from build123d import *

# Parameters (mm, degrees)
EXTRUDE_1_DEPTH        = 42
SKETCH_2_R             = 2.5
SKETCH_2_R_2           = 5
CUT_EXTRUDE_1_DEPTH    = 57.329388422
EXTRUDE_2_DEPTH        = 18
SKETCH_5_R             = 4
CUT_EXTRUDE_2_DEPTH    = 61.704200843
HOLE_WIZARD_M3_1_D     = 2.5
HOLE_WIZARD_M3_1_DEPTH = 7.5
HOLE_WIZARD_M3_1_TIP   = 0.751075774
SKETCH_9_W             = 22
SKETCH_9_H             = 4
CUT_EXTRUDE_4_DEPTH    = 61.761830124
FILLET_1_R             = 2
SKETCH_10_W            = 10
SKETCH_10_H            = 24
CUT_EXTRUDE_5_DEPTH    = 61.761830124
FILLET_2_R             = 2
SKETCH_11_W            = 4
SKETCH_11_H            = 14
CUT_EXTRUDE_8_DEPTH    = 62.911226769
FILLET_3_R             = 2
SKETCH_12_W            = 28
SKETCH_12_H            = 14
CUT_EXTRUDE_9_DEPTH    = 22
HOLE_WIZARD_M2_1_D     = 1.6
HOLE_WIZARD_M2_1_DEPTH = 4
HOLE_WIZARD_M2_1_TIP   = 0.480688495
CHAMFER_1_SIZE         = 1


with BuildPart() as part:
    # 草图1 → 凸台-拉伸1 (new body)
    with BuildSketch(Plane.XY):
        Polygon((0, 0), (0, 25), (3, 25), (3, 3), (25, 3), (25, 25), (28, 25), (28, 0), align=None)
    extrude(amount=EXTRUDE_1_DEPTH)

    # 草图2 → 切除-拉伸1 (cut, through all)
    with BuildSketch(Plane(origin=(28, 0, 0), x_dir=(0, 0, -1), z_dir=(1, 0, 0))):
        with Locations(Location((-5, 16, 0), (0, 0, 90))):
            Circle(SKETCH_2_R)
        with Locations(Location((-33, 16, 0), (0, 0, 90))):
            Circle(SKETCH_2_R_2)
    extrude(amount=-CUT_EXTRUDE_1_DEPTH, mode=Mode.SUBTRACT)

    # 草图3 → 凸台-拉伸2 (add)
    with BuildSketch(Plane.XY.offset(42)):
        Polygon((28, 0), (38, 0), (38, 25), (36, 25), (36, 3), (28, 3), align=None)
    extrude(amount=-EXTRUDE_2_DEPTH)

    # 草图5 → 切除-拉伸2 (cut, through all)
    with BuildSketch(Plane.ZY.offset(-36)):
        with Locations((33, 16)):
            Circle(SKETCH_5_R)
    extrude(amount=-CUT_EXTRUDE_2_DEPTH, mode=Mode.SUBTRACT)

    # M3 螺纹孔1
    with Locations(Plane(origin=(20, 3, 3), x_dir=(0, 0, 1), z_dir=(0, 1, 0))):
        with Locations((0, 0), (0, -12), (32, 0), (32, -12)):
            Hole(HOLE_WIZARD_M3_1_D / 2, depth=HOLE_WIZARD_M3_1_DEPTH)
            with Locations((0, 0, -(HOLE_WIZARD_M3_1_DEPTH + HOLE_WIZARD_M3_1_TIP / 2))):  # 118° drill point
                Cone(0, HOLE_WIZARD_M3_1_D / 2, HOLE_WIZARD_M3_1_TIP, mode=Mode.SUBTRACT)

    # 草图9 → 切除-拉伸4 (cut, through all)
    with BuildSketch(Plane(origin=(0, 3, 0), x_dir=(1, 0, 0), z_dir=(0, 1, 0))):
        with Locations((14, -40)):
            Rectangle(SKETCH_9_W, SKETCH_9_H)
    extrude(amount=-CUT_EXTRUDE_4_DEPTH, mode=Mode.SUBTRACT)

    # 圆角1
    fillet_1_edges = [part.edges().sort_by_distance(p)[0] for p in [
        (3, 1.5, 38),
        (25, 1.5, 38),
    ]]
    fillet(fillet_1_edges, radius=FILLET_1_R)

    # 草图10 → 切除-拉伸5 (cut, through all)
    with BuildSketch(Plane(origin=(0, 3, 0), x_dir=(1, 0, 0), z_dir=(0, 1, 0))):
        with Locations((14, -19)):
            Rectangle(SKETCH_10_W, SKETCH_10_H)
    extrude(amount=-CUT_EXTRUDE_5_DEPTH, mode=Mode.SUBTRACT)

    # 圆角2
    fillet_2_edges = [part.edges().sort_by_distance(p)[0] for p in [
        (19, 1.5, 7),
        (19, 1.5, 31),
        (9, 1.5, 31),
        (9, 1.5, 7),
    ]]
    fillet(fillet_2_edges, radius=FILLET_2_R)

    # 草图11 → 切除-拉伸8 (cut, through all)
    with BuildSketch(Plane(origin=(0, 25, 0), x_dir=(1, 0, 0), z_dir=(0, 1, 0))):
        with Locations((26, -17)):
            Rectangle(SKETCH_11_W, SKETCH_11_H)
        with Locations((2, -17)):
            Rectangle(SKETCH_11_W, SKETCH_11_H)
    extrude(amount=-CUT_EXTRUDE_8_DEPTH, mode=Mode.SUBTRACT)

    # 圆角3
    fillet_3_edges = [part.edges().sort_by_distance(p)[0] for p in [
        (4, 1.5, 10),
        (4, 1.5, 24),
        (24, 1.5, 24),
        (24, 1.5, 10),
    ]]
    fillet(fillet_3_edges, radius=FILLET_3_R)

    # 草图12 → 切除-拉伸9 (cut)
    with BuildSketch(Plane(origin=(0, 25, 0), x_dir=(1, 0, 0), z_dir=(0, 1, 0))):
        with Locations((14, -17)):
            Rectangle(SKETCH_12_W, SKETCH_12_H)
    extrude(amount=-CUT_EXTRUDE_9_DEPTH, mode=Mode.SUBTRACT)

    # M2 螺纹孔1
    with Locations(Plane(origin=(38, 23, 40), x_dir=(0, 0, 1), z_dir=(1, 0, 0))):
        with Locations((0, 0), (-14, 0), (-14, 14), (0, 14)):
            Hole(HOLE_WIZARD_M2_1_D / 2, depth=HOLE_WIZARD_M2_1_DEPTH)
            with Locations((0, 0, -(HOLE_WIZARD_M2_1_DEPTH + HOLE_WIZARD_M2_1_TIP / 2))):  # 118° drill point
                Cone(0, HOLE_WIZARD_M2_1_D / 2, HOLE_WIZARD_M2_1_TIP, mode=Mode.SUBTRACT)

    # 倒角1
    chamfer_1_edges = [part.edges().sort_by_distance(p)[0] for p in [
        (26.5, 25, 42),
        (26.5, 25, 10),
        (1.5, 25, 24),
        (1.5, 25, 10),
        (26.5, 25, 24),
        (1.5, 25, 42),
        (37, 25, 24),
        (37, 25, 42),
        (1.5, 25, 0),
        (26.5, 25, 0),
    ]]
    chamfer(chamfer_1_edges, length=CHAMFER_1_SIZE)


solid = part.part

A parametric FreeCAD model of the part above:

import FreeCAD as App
import Part
import Sketcher
Q = App.Units.Quantity


def edges_at(feature, points):
    """Names of the edges that pass closest to the given points."""
    edges = feature.Shape.Edges
    near = lambda p: min(range(len(edges)), key=lambda i: edges[i].distToShape(Part.Vertex(*p))[0])
    return sorted({f"Edge{near(p) + 1}" for p in points})

doc = App.newDocument("Part")
params = doc.addObject("Spreadsheet::Sheet", "Params")
for row, (alias, value) in enumerate([
    ("sketch1_width", "28 mm"),
    ("sketch1_width2", "3 mm"),
    ("sketch1_height", "25 mm"),
    ("pad1_length", "42 mm"),
    ("sketch2_diameter", "5 mm"),
    ("sketch2_diameter2", "10 mm"),
    ("sketch3_width", "10 mm"),
    ("sketch3_width2", "2 mm"),
    ("sketch3_height", "25 mm"),
    ("sketch3_height2", "22 mm"),
    ("pad2_length", "18 mm"),
    ("sketch4_diameter", "8 mm"),
    ("sketch5_diameter", "2.5 mm"),
    ("hole_diameter", "2.5 mm"),
    ("hole_depth", "7.5 mm"),
    ("sketch6_width", "22 mm"),
    ("sketch6_height", "4 mm"),
    ("fillet_radius", "2 mm"),
    ("sketch7_width", "10 mm"),
    ("sketch7_height", "24 mm"),
    ("fillet2_radius", "2 mm"),
    ("sketch8_width", "4 mm"),
    ("sketch8_height", "14 mm"),
    ("fillet3_radius", "2 mm"),
    ("sketch9_width", "28 mm"),
    ("sketch9_height", "14 mm"),
    ("pocket6_length", "22 mm"),
    ("sketch10_diameter", "1.6 mm"),
    ("hole2_diameter", "1.6 mm"),
    ("hole2_depth", "4 mm"),
    ("chamfer_size", "1 mm"),
], start=1):
    params.set(f"A{row}", alias)
    params.set(f"B{row}", "=" + value)
    params.setAlias(f"B{row}", alias)

body = doc.addObject("PartDesign::Body", "Body")

# Sketch on XY plane
sketch1 = body.newObject("Sketcher::SketchObject", "Sketch")
sketch1.AttachmentSupport = (doc.getObject("XY_Plane"), [""])
sketch1.MapMode = "FlatFace"
sketch1.addGeometry(Part.LineSegment(App.Vector(0, 25, 0), App.Vector(0, 0, 0)), False)
sketch1.addGeometry(Part.LineSegment(App.Vector(0, 0, 0), App.Vector(28, 0, 0)), False)
sketch1.addGeometry(Part.LineSegment(App.Vector(28, 0, 0), App.Vector(28, 25, 0)), False)
sketch1.addGeometry(Part.LineSegment(App.Vector(28, 25, 0), App.Vector(25, 25, 0)), False)
sketch1.addGeometry(Part.LineSegment(App.Vector(25, 25, 0), App.Vector(25, 3, 0)), False)
sketch1.addGeometry(Part.LineSegment(App.Vector(25, 3, 0), App.Vector(3, 3, 0)), False)
sketch1.addGeometry(Part.LineSegment(App.Vector(3, 3, 0), App.Vector(3, 25, 0)), False)
sketch1.addGeometry(Part.LineSegment(App.Vector(3, 25, 0), App.Vector(0, 25, 0)), False)
sketch1.addConstraint(Sketcher.Constraint("Coincident", 0, 2, 1, 1))
sketch1.addConstraint(Sketcher.Constraint("Coincident", 1, 2, 2, 1))
sketch1.addConstraint(Sketcher.Constraint("Coincident", 2, 2, 3, 1))
sketch1.addConstraint(Sketcher.Constraint("Coincident", 3, 2, 4, 1))
sketch1.addConstraint(Sketcher.Constraint("Coincident", 4, 2, 5, 1))
sketch1.addConstraint(Sketcher.Constraint("Coincident", 5, 2, 6, 1))
sketch1.addConstraint(Sketcher.Constraint("Coincident", 6, 2, 7, 1))
sketch1.addConstraint(Sketcher.Constraint("Coincident", 7, 2, 0, 1))
sketch1.addConstraint(Sketcher.Constraint("Vertical", 0))
sketch1.addConstraint(Sketcher.Constraint("Horizontal", 1))
sketch1.addConstraint(Sketcher.Constraint("Vertical", 2))
sketch1.addConstraint(Sketcher.Constraint("Horizontal", 3))
sketch1.addConstraint(Sketcher.Constraint("Vertical", 4))
sketch1.addConstraint(Sketcher.Constraint("Horizontal", 5))
sketch1.addConstraint(Sketcher.Constraint("Vertical", 6))
sketch1.addConstraint(Sketcher.Constraint("Horizontal", 7))
sketch1.addConstraint(Sketcher.Constraint("Coincident", 0, 2, -1, 1))
sketch1.addConstraint(Sketcher.Constraint("Horizontal", 3, 2, 6, 2))
sketch1.addConstraint(Sketcher.Constraint("Equal", 3, 7))
sketch1.addConstraint(Sketcher.Constraint("Equal", 5, 4))
sketch1.addConstraint(Sketcher.Constraint("DistanceX", 1, 1, 1, 2, Q("28 mm")))
sketch1.addConstraint(Sketcher.Constraint("DistanceX", 3, 2, 3, 1, Q("3 mm")))
sketch1.addConstraint(Sketcher.Constraint("DistanceY", 0, 2, 0, 1, Q("25 mm")))
sketch1.setExpression("Constraints[20]", "Params.sketch1_width")
sketch1.setExpression("Constraints[21]", "Params.sketch1_width2")
sketch1.setExpression("Constraints[22]", "Params.sketch1_height")
pad1 = body.newObject("PartDesign::Pad", "Pad")
pad1.Profile = sketch1
pad1.setExpression("Length", "Params.pad1_length")

# Sketch on YZ plane
sketch2 = body.newObject("Sketcher::SketchObject", "Sketch001")
sketch2.AttachmentSupport = (doc.getObject("YZ_Plane"), [""])
sketch2.MapMode = "FlatFace"
sketch2.AttachmentOffset = App.Placement(App.Vector(0, 0, 28), App.Rotation())
sketch2.addGeometry(Part.Circle(App.Vector(16, 5, 0), App.Vector(0, 0, 1), 2.5), False)
sketch2.addGeometry(Part.Circle(App.Vector(16, 33, 0), App.Vector(0, 0, 1), 5), False)
sketch2.addConstraint(Sketcher.Constraint("Vertical", 0, 3, 1, 3))
sketch2.addConstraint(Sketcher.Constraint("Diameter", 0, Q("5 mm")))
sketch2.addConstraint(Sketcher.Constraint("Diameter", 1, Q("10 mm")))
sketch2.addConstraint(Sketcher.Constraint("DistanceX", -1, 1, 0, 3, Q("16 mm")))
sketch2.addConstraint(Sketcher.Constraint("DistanceY", -1, 1, 0, 3, Q("5 mm")))
sketch2.addConstraint(Sketcher.Constraint("DistanceY", -1, 1, 1, 3, Q("33 mm")))
sketch2.setExpression("Constraints[1]", "Params.sketch2_diameter")
sketch2.setExpression("Constraints[2]", "Params.sketch2_diameter2")
pocket1 = body.newObject("PartDesign::Pocket", "Pocket")
pocket1.Profile = sketch2
pocket1.Type = "ThroughAll"

# Sketch on XY plane
sketch3 = body.newObject("Sketcher::SketchObject", "Sketch002")
sketch3.AttachmentSupport = (doc.getObject("XY_Plane"), [""])
sketch3.MapMode = "FlatFace"
sketch3.AttachmentOffset = App.Placement(App.Vector(0, 0, 42), App.Rotation())
sketch3.addGeometry(Part.LineSegment(App.Vector(28, 0, 0), App.Vector(38, 0, 0)), False)
sketch3.addGeometry(Part.LineSegment(App.Vector(38, 0, 0), App.Vector(38, 25, 0)), False)
sketch3.addGeometry(Part.LineSegment(App.Vector(38, 25, 0), App.Vector(36, 25, 0)), False)
sketch3.addGeometry(Part.LineSegment(App.Vector(36, 25, 0), App.Vector(36, 3, 0)), False)
sketch3.addGeometry(Part.LineSegment(App.Vector(36, 3, 0), App.Vector(28, 3, 0)), False)
sketch3.addGeometry(Part.LineSegment(App.Vector(28, 3, 0), App.Vector(28, 0, 0)), False)
sketch3.addConstraint(Sketcher.Constraint("Coincident", 0, 2, 1, 1))
sketch3.addConstraint(Sketcher.Constraint("Coincident", 1, 2, 2, 1))
sketch3.addConstraint(Sketcher.Constraint("Coincident", 2, 2, 3, 1))
sketch3.addConstraint(Sketcher.Constraint("Coincident", 3, 2, 4, 1))
sketch3.addConstraint(Sketcher.Constraint("Coincident", 4, 2, 5, 1))
sketch3.addConstraint(Sketcher.Constraint("Coincident", 5, 2, 0, 1))
sketch3.addConstraint(Sketcher.Constraint("Horizontal", 0))
sketch3.addConstraint(Sketcher.Constraint("Vertical", 1))
sketch3.addConstraint(Sketcher.Constraint("Horizontal", 2))
sketch3.addConstraint(Sketcher.Constraint("Vertical", 3))
sketch3.addConstraint(Sketcher.Constraint("Horizontal", 4))
sketch3.addConstraint(Sketcher.Constraint("Vertical", 5))
sketch3.addConstraint(Sketcher.Constraint("PointOnObject", 0, 2, -1))
sketch3.addConstraint(Sketcher.Constraint("DistanceX", 0, 1, 0, 2, Q("10 mm")))
sketch3.addConstraint(Sketcher.Constraint("DistanceX", 2, 2, 2, 1, Q("2 mm")))
sketch3.addConstraint(Sketcher.Constraint("DistanceY", 1, 1, 1, 2, Q("25 mm")))
sketch3.addConstraint(Sketcher.Constraint("DistanceY", 3, 2, 3, 1, Q("22 mm")))
sketch3.addConstraint(Sketcher.Constraint("DistanceX", -1, 1, 0, 2, Q("38 mm")))
sketch3.setExpression("Constraints[13]", "Params.sketch3_width")
sketch3.setExpression("Constraints[14]", "Params.sketch3_width2")
sketch3.setExpression("Constraints[15]", "Params.sketch3_height")
sketch3.setExpression("Constraints[16]", "Params.sketch3_height2")
pad2 = body.newObject("PartDesign::Pad", "Pad001")
pad2.Profile = sketch3
pad2.setExpression("Length", "Params.pad2_length")
pad2.Reversed = True

# Sketch on YZ plane
sketch4 = body.newObject("Sketcher::SketchObject", "Sketch003")
sketch4.AttachmentSupport = (doc.getObject("YZ_Plane"), [""])
sketch4.MapMode = "FlatFace"
sketch4.AttachmentOffset = App.Placement(App.Vector(0, 0, 36), App.Rotation())
sketch4.addGeometry(Part.Circle(App.Vector(16, 33, 0), App.Vector(0, 0, 1), 4), False)
sketch4.addConstraint(Sketcher.Constraint("Diameter", 0, Q("8 mm")))
sketch4.addConstraint(Sketcher.Constraint("DistanceX", -1, 1, 0, 3, Q("16 mm")))
sketch4.addConstraint(Sketcher.Constraint("DistanceY", -1, 1, 0, 3, Q("33 mm")))
sketch4.setExpression("Constraints[0]", "Params.sketch4_diameter")
pocket2 = body.newObject("PartDesign::Pocket", "Pocket001")
pocket2.Profile = sketch4
pocket2.Type = "ThroughAll"
pocket2.Reversed = True

# Sketch on XZ plane
sketch5 = body.newObject("Sketcher::SketchObject", "Sketch004")
sketch5.AttachmentSupport = (doc.getObject("XZ_Plane"), [""])
sketch5.MapMode = "FlatFace"
sketch5.AttachmentOffset = App.Placement(App.Vector(0, 0, -3), App.Rotation())
sketch5.addGeometry(Part.Circle(App.Vector(20, 3, 0), App.Vector(0, 0, 1), 1.2), False)
sketch5.addGeometry(Part.Circle(App.Vector(8, 3, 0), App.Vector(0, 0, 1), 1.2), False)
sketch5.addGeometry(Part.Circle(App.Vector(20, 35, 0), App.Vector(0, 0, 1), 1.2), False)
sketch5.addGeometry(Part.Circle(App.Vector(8, 35, 0), App.Vector(0, 0, 1), 1.2), False)
sketch5.addConstraint(Sketcher.Constraint("Equal", 0, 1))
sketch5.addConstraint(Sketcher.Constraint("Equal", 1, 2))
sketch5.addConstraint(Sketcher.Constraint("Equal", 2, 3))
sketch5.addConstraint(Sketcher.Constraint("Horizontal", 0, 3, 1, 3))
sketch5.addConstraint(Sketcher.Constraint("Horizontal", 2, 3, 3, 3))
sketch5.addConstraint(Sketcher.Constraint("Vertical", 0, 3, 2, 3))
sketch5.addConstraint(Sketcher.Constraint("Vertical", 1, 3, 3, 3))
sketch5.addConstraint(Sketcher.Constraint("Diameter", 0, Q("2.5 mm")))
sketch5.addConstraint(Sketcher.Constraint("DistanceX", -1, 1, 0, 3, Q("20 mm")))
sketch5.addConstraint(Sketcher.Constraint("DistanceY", -1, 1, 0, 3, Q("3 mm")))
sketch5.addConstraint(Sketcher.Constraint("DistanceX", -1, 1, 1, 3, Q("8 mm")))
sketch5.addConstraint(Sketcher.Constraint("DistanceY", -1, 1, 2, 3, Q("35 mm")))
sketch5.setExpression("Constraints[7]", "Params.sketch5_diameter")
doc.recompute()
hole = body.newObject("PartDesign::Hole", "Hole")
hole.Profile = sketch5
hole.ThreadType = "None"
hole.setExpression("Diameter", "Params.hole_diameter")
hole.DepthType = "Dimension"
hole.setExpression("Depth", "Params.hole_depth")
hole.DrillPoint = "Angled"
hole.DrillPointAngle = 118
hole.Reversed = True

# Sketch on XZ plane
sketch6 = body.newObject("Sketcher::SketchObject", "Sketch005")
sketch6.AttachmentSupport = (doc.getObject("XZ_Plane"), [""])
sketch6.MapMode = "FlatFace"
sketch6.AttachmentOffset = App.Placement(App.Vector(0, 0, -3), App.Rotation())
sketch6.addGeometry(Part.LineSegment(App.Vector(3, 38, 0), App.Vector(3, 42, 0)), False)
sketch6.addGeometry(Part.LineSegment(App.Vector(3, 42, 0), App.Vector(25, 42, 0)), False)
sketch6.addGeometry(Part.LineSegment(App.Vector(25, 42, 0), App.Vector(25, 38, 0)), False)
sketch6.addGeometry(Part.LineSegment(App.Vector(25, 38, 0), App.Vector(3, 38, 0)), False)
sketch6.addConstraint(Sketcher.Constraint("Coincident", 0, 2, 1, 1))
sketch6.addConstraint(Sketcher.Constraint("Coincident", 1, 2, 2, 1))
sketch6.addConstraint(Sketcher.Constraint("Coincident", 2, 2, 3, 1))
sketch6.addConstraint(Sketcher.Constraint("Coincident", 3, 2, 0, 1))
sketch6.addConstraint(Sketcher.Constraint("Vertical", 0))
sketch6.addConstraint(Sketcher.Constraint("Horizontal", 1))
sketch6.addConstraint(Sketcher.Constraint("Vertical", 2))
sketch6.addConstraint(Sketcher.Constraint("Horizontal", 3))
sketch6.addConstraint(Sketcher.Constraint("DistanceX", 1, 1, 1, 2, Q("22 mm")))
sketch6.addConstraint(Sketcher.Constraint("DistanceY", 0, 1, 0, 2, Q("4 mm")))
sketch6.addConstraint(Sketcher.Constraint("DistanceX", -1, 1, 0, 2, Q("3 mm")))
sketch6.addConstraint(Sketcher.Constraint("DistanceY", -1, 1, 0, 2, Q("42 mm")))
sketch6.setExpression("Constraints[8]", "Params.sketch6_width")
sketch6.setExpression("Constraints[9]", "Params.sketch6_height")
pocket3 = body.newObject("PartDesign::Pocket", "Pocket002")
pocket3.Profile = sketch6
pocket3.Type = "ThroughAll"
pocket3.Reversed = True
doc.recompute()

fillet = body.newObject("PartDesign::Fillet", "Fillet")
fillet.Base = (pocket3, edges_at(pocket3, [(3, 1.5, 38), (25, 1.5, 38)]))
fillet.setExpression("Radius", "Params.fillet_radius")

# Sketch on XZ plane
sketch7 = body.newObject("Sketcher::SketchObject", "Sketch006")
sketch7.AttachmentSupport = (doc.getObject("XZ_Plane"), [""])
sketch7.MapMode = "FlatFace"
sketch7.AttachmentOffset = App.Placement(App.Vector(0, 0, -3), App.Rotation())
sketch7.addGeometry(Part.LineSegment(App.Vector(9, 7, 0), App.Vector(9, 31, 0)), False)
sketch7.addGeometry(Part.LineSegment(App.Vector(9, 31, 0), App.Vector(19, 31, 0)), False)
sketch7.addGeometry(Part.LineSegment(App.Vector(19, 31, 0), App.Vector(19, 7, 0)), False)
sketch7.addGeometry(Part.LineSegment(App.Vector(19, 7, 0), App.Vector(9, 7, 0)), False)
sketch7.addConstraint(Sketcher.Constraint("Coincident", 0, 2, 1, 1))
sketch7.addConstraint(Sketcher.Constraint("Coincident", 1, 2, 2, 1))
sketch7.addConstraint(Sketcher.Constraint("Coincident", 2, 2, 3, 1))
sketch7.addConstraint(Sketcher.Constraint("Coincident", 3, 2, 0, 1))
sketch7.addConstraint(Sketcher.Constraint("Vertical", 0))
sketch7.addConstraint(Sketcher.Constraint("Horizontal", 1))
sketch7.addConstraint(Sketcher.Constraint("Vertical", 2))
sketch7.addConstraint(Sketcher.Constraint("Horizontal", 3))
sketch7.addConstraint(Sketcher.Constraint("DistanceX", 1, 1, 1, 2, Q("10 mm")))
sketch7.addConstraint(Sketcher.Constraint("DistanceY", 0, 1, 0, 2, Q("24 mm")))
sketch7.addConstraint(Sketcher.Constraint("DistanceX", -1, 1, 0, 2, Q("9 mm")))
sketch7.addConstraint(Sketcher.Constraint("DistanceY", -1, 1, 0, 2, Q("31 mm")))
sketch7.setExpression("Constraints[8]", "Params.sketch7_width")
sketch7.setExpression("Constraints[9]", "Params.sketch7_height")
pocket4 = body.newObject("PartDesign::Pocket", "Pocket003")
pocket4.Profile = sketch7
pocket4.Type = "ThroughAll"
pocket4.Reversed = True
doc.recompute()

fillet2 = body.newObject("PartDesign::Fillet", "Fillet001")
fillet2.Base = (pocket4, edges_at(pocket4, [
    (19, 1.5, 7),
    (19, 1.5, 31),
    (9, 1.5, 31),
    (9, 1.5, 7),
]))
fillet2.setExpression("Radius", "Params.fillet2_radius")

# Sketch on XZ plane
sketch8 = body.newObject("Sketcher::SketchObject", "Sketch007")
sketch8.AttachmentSupport = (doc.getObject("XZ_Plane"), [""])
sketch8.MapMode = "FlatFace"
sketch8.AttachmentOffset = App.Placement(App.Vector(0, 0, -25), App.Rotation())
sketch8.addGeometry(Part.LineSegment(App.Vector(24, 10, 0), App.Vector(24, 24, 0)), False)
sketch8.addGeometry(Part.LineSegment(App.Vector(24, 24, 0), App.Vector(28, 24, 0)), False)
sketch8.addGeometry(Part.LineSegment(App.Vector(28, 24, 0), App.Vector(28, 10, 0)), False)
sketch8.addGeometry(Part.LineSegment(App.Vector(28, 10, 0), App.Vector(24, 10, 0)), False)
sketch8.addGeometry(Part.LineSegment(App.Vector(0, 10, 0), App.Vector(0, 24, 0)), False)
sketch8.addGeometry(Part.LineSegment(App.Vector(0, 24, 0), App.Vector(4, 24, 0)), False)
sketch8.addGeometry(Part.LineSegment(App.Vector(4, 24, 0), App.Vector(4, 10, 0)), False)
sketch8.addGeometry(Part.LineSegment(App.Vector(4, 10, 0), App.Vector(0, 10, 0)), False)
sketch8.addConstraint(Sketcher.Constraint("Coincident", 0, 2, 1, 1))
sketch8.addConstraint(Sketcher.Constraint("Coincident", 1, 2, 2, 1))
sketch8.addConstraint(Sketcher.Constraint("Coincident", 2, 2, 3, 1))
sketch8.addConstraint(Sketcher.Constraint("Coincident", 3, 2, 0, 1))
sketch8.addConstraint(Sketcher.Constraint("Coincident", 4, 2, 5, 1))
sketch8.addConstraint(Sketcher.Constraint("Coincident", 5, 2, 6, 1))
sketch8.addConstraint(Sketcher.Constraint("Coincident", 6, 2, 7, 1))
sketch8.addConstraint(Sketcher.Constraint("Coincident", 7, 2, 4, 1))
sketch8.addConstraint(Sketcher.Constraint("Vertical", 0))
sketch8.addConstraint(Sketcher.Constraint("Horizontal", 1))
sketch8.addConstraint(Sketcher.Constraint("Vertical", 2))
sketch8.addConstraint(Sketcher.Constraint("Horizontal", 3))
sketch8.addConstraint(Sketcher.Constraint("Vertical", 4))
sketch8.addConstraint(Sketcher.Constraint("Horizontal", 5))
sketch8.addConstraint(Sketcher.Constraint("Vertical", 6))
sketch8.addConstraint(Sketcher.Constraint("Horizontal", 7))
sketch8.addConstraint(Sketcher.Constraint("PointOnObject", 4, 2, -2))
sketch8.addConstraint(Sketcher.Constraint("Horizontal", 1, 2, 4, 2))
sketch8.addConstraint(Sketcher.Constraint("Horizontal", 3, 2, 6, 2))
sketch8.addConstraint(Sketcher.Constraint("Equal", 3, 5))
sketch8.addConstraint(Sketcher.Constraint("DistanceX", 1, 1, 1, 2, Q("4 mm")))
sketch8.addConstraint(Sketcher.Constraint("DistanceY", 0, 1, 0, 2, Q("14 mm")))
sketch8.addConstraint(Sketcher.Constraint("DistanceX", -1, 1, 0, 2, Q("24 mm")))
sketch8.addConstraint(Sketcher.Constraint("DistanceY", -1, 1, 0, 2, Q("24 mm")))
sketch8.setExpression("Constraints[20]", "Params.sketch8_width")
sketch8.setExpression("Constraints[21]", "Params.sketch8_height")
pocket5 = body.newObject("PartDesign::Pocket", "Pocket004")
pocket5.Profile = sketch8
pocket5.Type = "ThroughAll"
pocket5.Reversed = True
doc.recompute()

fillet3 = body.newObject("PartDesign::Fillet", "Fillet002")
fillet3.Base = (pocket5, edges_at(pocket5, [
    (4, 1.5, 10),
    (4, 1.5, 24),
    (24, 1.5, 24),
    (24, 1.5, 10),
]))
fillet3.setExpression("Radius", "Params.fillet3_radius")

# Sketch on XZ plane
sketch9 = body.newObject("Sketcher::SketchObject", "Sketch008")
sketch9.AttachmentSupport = (doc.getObject("XZ_Plane"), [""])
sketch9.MapMode = "FlatFace"
sketch9.AttachmentOffset = App.Placement(App.Vector(0, 0, -25), App.Rotation())
sketch9.addGeometry(Part.LineSegment(App.Vector(0, 10, 0), App.Vector(0, 24, 0)), False)
sketch9.addGeometry(Part.LineSegment(App.Vector(0, 24, 0), App.Vector(28, 24, 0)), False)
sketch9.addGeometry(Part.LineSegment(App.Vector(28, 24, 0), App.Vector(28, 10, 0)), False)
sketch9.addGeometry(Part.LineSegment(App.Vector(28, 10, 0), App.Vector(0, 10, 0)), False)
sketch9.addConstraint(Sketcher.Constraint("Coincident", 0, 2, 1, 1))
sketch9.addConstraint(Sketcher.Constraint("Coincident", 1, 2, 2, 1))
sketch9.addConstraint(Sketcher.Constraint("Coincident", 2, 2, 3, 1))
sketch9.addConstraint(Sketcher.Constraint("Coincident", 3, 2, 0, 1))
sketch9.addConstraint(Sketcher.Constraint("Vertical", 0))
sketch9.addConstraint(Sketcher.Constraint("Horizontal", 1))
sketch9.addConstraint(Sketcher.Constraint("Vertical", 2))
sketch9.addConstraint(Sketcher.Constraint("Horizontal", 3))
sketch9.addConstraint(Sketcher.Constraint("PointOnObject", 0, 2, -2))
sketch9.addConstraint(Sketcher.Constraint("DistanceX", 1, 1, 1, 2, Q("28 mm")))
sketch9.addConstraint(Sketcher.Constraint("DistanceY", 0, 1, 0, 2, Q("14 mm")))
sketch9.addConstraint(Sketcher.Constraint("DistanceY", -1, 1, 0, 2, Q("24 mm")))
sketch9.setExpression("Constraints[9]", "Params.sketch9_width")
sketch9.setExpression("Constraints[10]", "Params.sketch9_height")
pocket6 = body.newObject("PartDesign::Pocket", "Pocket005")
pocket6.Profile = sketch9
pocket6.setExpression("Length", "Params.pocket6_length")
pocket6.Reversed = True

# Sketch on YZ plane
sketch10 = body.newObject("Sketcher::SketchObject", "Sketch009")
sketch10.AttachmentSupport = (doc.getObject("YZ_Plane"), [""])
sketch10.MapMode = "FlatFace"
sketch10.AttachmentOffset = App.Placement(App.Vector(0, 0, 38), App.Rotation())
sketch10.addGeometry(Part.Circle(App.Vector(23, 40, 0), App.Vector(0, 0, 1), 0.8), False)
sketch10.addGeometry(Part.Circle(App.Vector(23, 26, 0), App.Vector(0, 0, 1), 0.8), False)
sketch10.addGeometry(Part.Circle(App.Vector(9, 26, 0), App.Vector(0, 0, 1), 0.8), False)
sketch10.addGeometry(Part.Circle(App.Vector(9, 40, 0), App.Vector(0, 0, 1), 0.8), False)
sketch10.addConstraint(Sketcher.Constraint("Equal", 0, 1))
sketch10.addConstraint(Sketcher.Constraint("Equal", 1, 2))
sketch10.addConstraint(Sketcher.Constraint("Equal", 2, 3))
sketch10.addConstraint(Sketcher.Constraint("Horizontal", 1, 3, 2, 3))
sketch10.addConstraint(Sketcher.Constraint("Horizontal", 0, 3, 3, 3))
sketch10.addConstraint(Sketcher.Constraint("Vertical", 0, 3, 1, 3))
sketch10.addConstraint(Sketcher.Constraint("Vertical", 2, 3, 3, 3))
sketch10.addConstraint(Sketcher.Constraint("Diameter", 0, Q("1.6 mm")))
sketch10.addConstraint(Sketcher.Constraint("DistanceX", -1, 1, 0, 3, Q("23 mm")))
sketch10.addConstraint(Sketcher.Constraint("DistanceY", -1, 1, 0, 3, Q("40 mm")))
sketch10.addConstraint(Sketcher.Constraint("DistanceY", -1, 1, 1, 3, Q("26 mm")))
sketch10.addConstraint(Sketcher.Constraint("DistanceX", -1, 1, 2, 3, Q("9 mm")))
sketch10.setExpression("Constraints[7]", "Params.sketch10_diameter")
doc.recompute()
hole2 = body.newObject("PartDesign::Hole", "Hole001")
hole2.Profile = sketch10
hole2.ThreadType = "None"
hole2.setExpression("Diameter", "Params.hole2_diameter")
hole2.DepthType = "Dimension"
hole2.setExpression("Depth", "Params.hole2_depth")
hole2.DrillPoint = "Angled"
hole2.DrillPointAngle = 118
doc.recompute()

chamfer = body.newObject("PartDesign::Chamfer", "Chamfer")
chamfer.Base = (hole2, edges_at(hole2, [
    (26.5, 25, 42),
    (26.5, 25, 10),
    (1.5, 25, 24),
    (1.5, 25, 10),
    (26.5, 25, 24),
    (1.5, 25, 42),
    (37, 25, 24),
    (37, 25, 42),
    (1.5, 25, 0),
    (26.5, 25, 0),
]))
chamfer.setExpression("Size", "Params.chamfer_size")

doc.recompute()
